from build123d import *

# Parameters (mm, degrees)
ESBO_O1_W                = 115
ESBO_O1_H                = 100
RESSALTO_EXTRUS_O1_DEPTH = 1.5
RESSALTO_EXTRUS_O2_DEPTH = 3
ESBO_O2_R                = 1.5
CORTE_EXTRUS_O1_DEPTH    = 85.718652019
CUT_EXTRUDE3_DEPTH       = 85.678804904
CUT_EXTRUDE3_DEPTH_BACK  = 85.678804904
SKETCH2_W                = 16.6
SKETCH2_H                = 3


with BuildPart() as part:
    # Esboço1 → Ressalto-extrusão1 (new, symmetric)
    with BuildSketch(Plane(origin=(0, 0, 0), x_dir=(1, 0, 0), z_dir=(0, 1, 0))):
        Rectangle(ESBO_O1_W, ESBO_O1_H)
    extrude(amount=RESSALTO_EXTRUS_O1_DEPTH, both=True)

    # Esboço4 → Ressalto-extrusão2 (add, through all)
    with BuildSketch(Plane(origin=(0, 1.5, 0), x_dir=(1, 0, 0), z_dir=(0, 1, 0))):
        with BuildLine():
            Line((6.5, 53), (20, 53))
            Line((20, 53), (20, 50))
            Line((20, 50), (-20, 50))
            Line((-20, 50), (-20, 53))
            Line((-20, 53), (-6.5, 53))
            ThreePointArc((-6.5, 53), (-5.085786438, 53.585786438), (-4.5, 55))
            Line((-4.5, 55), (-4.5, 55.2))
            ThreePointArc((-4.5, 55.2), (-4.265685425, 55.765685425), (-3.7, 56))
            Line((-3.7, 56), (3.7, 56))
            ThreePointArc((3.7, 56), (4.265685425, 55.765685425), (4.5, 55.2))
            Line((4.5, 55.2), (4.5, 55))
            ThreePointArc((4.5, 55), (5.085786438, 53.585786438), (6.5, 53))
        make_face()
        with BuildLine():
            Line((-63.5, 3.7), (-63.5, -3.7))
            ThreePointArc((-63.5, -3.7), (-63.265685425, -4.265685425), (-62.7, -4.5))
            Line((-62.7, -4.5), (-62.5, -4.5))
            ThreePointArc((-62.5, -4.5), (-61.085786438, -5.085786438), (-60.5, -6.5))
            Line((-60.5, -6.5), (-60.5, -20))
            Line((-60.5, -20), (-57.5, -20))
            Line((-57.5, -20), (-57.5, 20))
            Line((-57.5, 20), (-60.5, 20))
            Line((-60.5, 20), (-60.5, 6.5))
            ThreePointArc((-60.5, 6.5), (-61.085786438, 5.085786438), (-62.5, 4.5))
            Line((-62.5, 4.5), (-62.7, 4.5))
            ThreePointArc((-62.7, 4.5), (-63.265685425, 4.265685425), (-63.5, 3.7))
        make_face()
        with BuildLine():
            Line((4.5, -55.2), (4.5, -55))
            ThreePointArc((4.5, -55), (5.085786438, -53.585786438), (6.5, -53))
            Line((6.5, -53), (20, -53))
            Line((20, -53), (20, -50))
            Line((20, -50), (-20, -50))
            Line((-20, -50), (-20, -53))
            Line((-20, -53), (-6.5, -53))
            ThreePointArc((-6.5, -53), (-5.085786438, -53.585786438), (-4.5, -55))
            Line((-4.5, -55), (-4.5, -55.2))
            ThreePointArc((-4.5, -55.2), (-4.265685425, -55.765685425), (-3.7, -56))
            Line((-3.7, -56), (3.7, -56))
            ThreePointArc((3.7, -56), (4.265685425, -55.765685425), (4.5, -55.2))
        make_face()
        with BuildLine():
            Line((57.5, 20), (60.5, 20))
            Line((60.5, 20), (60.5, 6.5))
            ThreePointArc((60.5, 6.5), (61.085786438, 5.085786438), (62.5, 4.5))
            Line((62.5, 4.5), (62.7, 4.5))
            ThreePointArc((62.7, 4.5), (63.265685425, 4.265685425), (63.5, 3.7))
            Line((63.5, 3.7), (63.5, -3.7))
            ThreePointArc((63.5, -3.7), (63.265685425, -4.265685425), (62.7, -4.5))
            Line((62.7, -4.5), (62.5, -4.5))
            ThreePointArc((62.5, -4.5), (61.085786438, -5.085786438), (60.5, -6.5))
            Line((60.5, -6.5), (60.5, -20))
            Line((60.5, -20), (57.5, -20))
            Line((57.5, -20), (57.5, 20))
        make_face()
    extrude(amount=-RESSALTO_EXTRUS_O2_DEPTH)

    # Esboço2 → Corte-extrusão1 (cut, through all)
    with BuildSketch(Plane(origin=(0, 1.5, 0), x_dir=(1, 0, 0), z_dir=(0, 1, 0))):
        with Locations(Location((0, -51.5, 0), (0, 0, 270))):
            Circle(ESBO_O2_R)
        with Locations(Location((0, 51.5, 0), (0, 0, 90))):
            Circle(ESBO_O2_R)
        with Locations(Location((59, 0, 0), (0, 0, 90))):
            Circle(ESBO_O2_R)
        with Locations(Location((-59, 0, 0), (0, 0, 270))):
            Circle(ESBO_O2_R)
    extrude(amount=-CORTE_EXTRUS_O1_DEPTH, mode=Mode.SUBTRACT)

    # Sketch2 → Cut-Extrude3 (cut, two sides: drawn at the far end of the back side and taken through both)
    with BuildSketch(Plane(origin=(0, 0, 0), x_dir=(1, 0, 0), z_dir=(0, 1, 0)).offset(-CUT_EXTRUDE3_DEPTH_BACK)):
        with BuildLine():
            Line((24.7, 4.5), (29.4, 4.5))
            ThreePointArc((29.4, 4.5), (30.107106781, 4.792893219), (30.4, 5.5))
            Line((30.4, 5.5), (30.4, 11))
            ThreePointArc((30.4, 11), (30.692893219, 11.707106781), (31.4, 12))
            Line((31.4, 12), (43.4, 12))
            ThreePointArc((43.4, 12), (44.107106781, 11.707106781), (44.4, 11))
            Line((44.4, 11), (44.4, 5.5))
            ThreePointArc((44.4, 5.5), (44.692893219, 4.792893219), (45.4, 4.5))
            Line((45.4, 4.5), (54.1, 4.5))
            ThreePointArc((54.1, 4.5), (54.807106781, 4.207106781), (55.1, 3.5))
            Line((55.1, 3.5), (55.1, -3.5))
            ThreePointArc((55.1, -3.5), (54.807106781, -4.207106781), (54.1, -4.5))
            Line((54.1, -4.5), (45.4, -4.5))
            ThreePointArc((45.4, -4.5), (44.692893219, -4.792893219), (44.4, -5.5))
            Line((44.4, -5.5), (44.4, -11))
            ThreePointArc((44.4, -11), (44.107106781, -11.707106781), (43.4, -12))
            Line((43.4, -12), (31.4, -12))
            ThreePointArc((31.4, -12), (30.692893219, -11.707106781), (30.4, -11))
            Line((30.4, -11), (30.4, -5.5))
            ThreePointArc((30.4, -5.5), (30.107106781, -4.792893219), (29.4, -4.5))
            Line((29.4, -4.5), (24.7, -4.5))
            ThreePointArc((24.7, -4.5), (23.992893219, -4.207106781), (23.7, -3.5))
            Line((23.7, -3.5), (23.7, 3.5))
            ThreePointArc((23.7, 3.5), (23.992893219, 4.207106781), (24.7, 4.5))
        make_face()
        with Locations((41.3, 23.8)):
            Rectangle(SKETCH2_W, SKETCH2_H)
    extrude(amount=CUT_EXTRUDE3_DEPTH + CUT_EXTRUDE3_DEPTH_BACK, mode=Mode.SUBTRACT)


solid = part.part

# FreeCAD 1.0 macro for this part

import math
import FreeCAD as App
import Part
import Sketcher

V = App.Vector


def add_polygon(sketch, points):
    """Adds a closed chain of lines whose ends are joined by coincident constraints."""
    first, n = sketch.GeometryCount, len(points)
    for a, b in zip(points, points[1:] + points[:1]):
        sketch.addGeometry(Part.LineSegment(App.Vector(*a, 0), App.Vector(*b, 0)), False)
    for i in range(n):
        sketch.addConstraint(Sketcher.Constraint("Coincident", first + i, 2, first + (i + 1) % n, 1))

doc = App.newDocument("Part")
body = doc.addObject("PartDesign::Body", "Body")

# Sketch on XZ plane
sketch1 = body.newObject("Sketcher::SketchObject", "Sketch")
sketch1.AttachmentSupport = (doc.getObject("XZ_Plane"), [""])
sketch1.MapMode = "FlatFace"
add_polygon(sketch1, [(-58, -50), (-58, 50), (58, 50), (58, -50)])  # lines 0-3
sketch1.addConstraint([
    Sketcher.Constraint("Vertical", 0),
    Sketcher.Constraint("Horizontal", 1),
    Sketcher.Constraint("Vertical", 2),
    Sketcher.Constraint("Horizontal", 3),
    Sketcher.Constraint("Symmetric", 0, 2, 2, 2, -1, 1),
    Sketcher.Constraint("DistanceX", 1, 1, 1, 2, 115.0),
    Sketcher.Constraint("DistanceY", 0, 1, 0, 2, 100.0),
])
pad1 = body.newObject("PartDesign::Pad", "Pad")
pad1.Profile = sketch1
pad1.Length = 3
pad1.Midplane = True

# Sketch on XZ plane
sketch2 = body.newObject("Sketcher::SketchObject", "Sketch001")
sketch2.AttachmentSupport = (doc.getObject("XZ_Plane"), [""])
sketch2.MapMode = "FlatFace"
sketch2.AttachmentOffset = App.Placement(V(0, 0, -1.5), App.Rotation())
sketch2.addGeometry([
    Part.LineSegment(V(20, -53, 0), V(6.5, -53, 0)),  # 0
    Part.ArcOfCircle(Part.Circle(V(6.5, -55, 0), V(0, 0, 1), 2), math.radians(90), math.radians(180)),  # 1
    Part.LineSegment(V(4.5, -55, 0), V(4.5, -55.2, 0)),  # 2
    Part.ArcOfCircle(Part.Circle(V(3.7, -55.2, 0), V(0, 0, 1), 0.8), math.radians(-90), math.radians(0)),  # 3
    Part.LineSegment(V(3.7, -56, 0), V(-3.7, -56, 0)),  # 4
    Part.ArcOfCircle(Part.Circle(V(-3.7, -55.2, 0), V(0, 0, 1), 0.8), math.radians(180), math.radians(270)),  # 5
    Part.LineSegment(V(-4.5, -55.2, 0), V(-4.5, -55, 0)),  # 6
    Part.ArcOfCircle(Part.Circle(V(-6.5, -55, 0), V(0, 0, 1), 2), math.radians(0), math.radians(90)),  # 7
    Part.LineSegment(V(-6.5, -53, 0), V(-20, -53, 0)),  # 8
    Part.LineSegment(V(-20, -53, 0), V(-20, -50, 0)),  # 9
    Part.LineSegment(V(-20, -50, 0), V(20, -50, 0)),  # 10
    Part.LineSegment(V(20, -50, 0), V(20, -53, 0)),  # 11
    Part.LineSegment(V(-63.5, -3.7, 0), V(-63.5, 3.7, 0)),  # 12
    Part.ArcOfCircle(Part.Circle(V(-62.7, 3.7, 0), V(0, 0, 1), 0.8), math.radians(90), math.radians(180)),  # 13
    Part.LineSegment(V(-62.7, 4.5, 0), V(-62.5, 4.5, 0)),  # 14
    Part.ArcOfCircle(Part.Circle(V(-62.5, 6.5, 0), V(0, 0, 1), 2), math.radians(-90), math.radians(0)),  # 15
    Part.LineSegment(V(-60.5, 6.5, 0), V(-60.5, 20, 0)),  # 16
    Part.LineSegment(V(-60.5, 20, 0), V(-57.5, 20, 0)),  # 17
    Part.LineSegment(V(-57.5, 20, 0), V(-57.5, -20, 0)),  # 18
    Part.LineSegment(V(-57.5, -20, 0), V(-60.5, -20, 0)),  # 19
    Part.LineSegment(V(-60.5, -20, 0), V(-60.5, -6.5, 0)),  # 20
    Part.ArcOfCircle(Part.Circle(V(-62.5, -6.5, 0), V(0, 0, 1), 2), math.radians(0), math.radians(90)),  # 21
    Part.LineSegment(V(-62.5, -4.5, 0), V(-62.7, -4.5, 0)),  # 22
    Part.ArcOfCircle(Part.Circle(V(-62.7, -3.7, 0), V(0, 0, 1), 0.8), math.radians(180), math.radians(270)),  # 23
    Part.LineSegment(V(4.5, 55.2, 0), V(4.5, 55, 0)),  # 24
    Part.ArcOfCircle(Part.Circle(V(6.5, 55, 0), V(0, 0, 1), 2), math.radians(-180), math.radians(-90)),  # 25
    Part.LineSegment(V(6.5, 53, 0), V(20, 53, 0)),  # 26
    Part.LineSegment(V(20, 53, 0), V(20, 50, 0)),  # 27
    Part.LineSegment(V(20, 50, 0), V(-20, 50, 0)),  # 28
    Part.LineSegment(V(-20, 50, 0), V(-20, 53, 0)),  # 29
    Part.LineSegment(V(-20, 53, 0), V(-6.5, 53, 0)),  # 30
    Part.ArcOfCircle(Part.Circle(V(-6.5, 55, 0), V(0, 0, 1), 2), math.radians(-90), math.radians(0)),  # 31
    Part.LineSegment(V(-4.5, 55, 0), V(-4.5, 55.2, 0)),  # 32
    Part.ArcOfCircle(Part.Circle(V(-3.7, 55.2, 0), V(0, 0, 1), 0.8), math.radians(90), math.radians(180)),  # 33
    Part.LineSegment(V(-3.7, 56, 0), V(3.7, 56, 0)),  # 34
    Part.ArcOfCircle(Part.Circle(V(3.7, 55.2, 0), V(0, 0, 1), 0.8), math.radians(0), math.radians(90)),  # 35
    Part.LineSegment(V(60.5, -20, 0), V(57.5, -20, 0)),  # 36
    Part.LineSegment(V(57.5, -20, 0), V(57.5, 20, 0)),  # 37
    Part.LineSegment(V(57.5, 20, 0), V(60.5, 20, 0)),  # 38
    Part.LineSegment(V(60.5, 20, 0), V(60.5, 6.5, 0)),  # 39
    Part.ArcOfCircle(Part.Circle(V(62.5, 6.5, 0), V(0, 0, 1), 2), math.radians(-180), math.radians(-90)),  # 40
    Part.LineSegment(V(62.5, 4.5, 0), V(62.7, 4.5, 0)),  # 41
    Part.ArcOfCircle(Part.Circle(V(62.7, 3.7, 0), V(0, 0, 1), 0.8), math.radians(0), math.radians(90)),  # 42
    Part.LineSegment(V(63.5, 3.7, 0), V(63.5, -3.7, 0)),  # 43
    Part.ArcOfCircle(Part.Circle(V(62.7, -3.7, 0), V(0, 0, 1), 0.8), math.radians(-90), math.radians(0)),  # 44
    Part.LineSegment(V(62.7, -4.5, 0), V(62.5, -4.5, 0)),  # 45
    Part.ArcOfCircle(Part.Circle(V(62.5, -6.5, 0), V(0, 0, 1), 2), math.radians(90), math.radians(180)),  # 46
    Part.LineSegment(V(60.5, -6.5, 0), V(60.5, -20, 0)),  # 47
], False)
sketch2.addConstraint([
    Sketcher.Constraint("Tangent", 0, 2, 1, 1),
    Sketcher.Constraint("Tangent", 1, 2, 2, 1),
    Sketcher.Constraint("Tangent", 2, 2, 3, 2),
    Sketcher.Constraint("Tangent", 3, 1, 4, 1),
    Sketcher.Constraint("Tangent", 4, 2, 5, 2),
    Sketcher.Constraint("Tangent", 5, 1, 6, 1),
    Sketcher.Constraint("Tangent", 6, 2, 7, 1),
    Sketcher.Constraint("Tangent", 7, 2, 8, 1),
    Sketcher.Constraint("Coincident", 8, 2, 9, 1),
    Sketcher.Constraint("Coincident", 9, 2, 10, 1),
    Sketcher.Constraint("Coincident", 10, 2, 11, 1),
    Sketcher.Constraint("Coincident", 11, 2, 0, 1),
    Sketcher.Constraint("Tangent", 12, 2, 13, 2),
    Sketcher.Constraint("Tangent", 13, 1, 14, 1),
    Sketcher.Constraint("Tangent", 14, 2, 15, 1),
    Sketcher.Constraint("Tangent", 15, 2, 16, 1),
    Sketcher.Constraint("Coincident", 16, 2, 17, 1),
    Sketcher.Constraint("Coincident", 17, 2, 18, 1),
    Sketcher.Constraint("Coincident", 18, 2, 19, 1),
    Sketcher.Constraint("Coincident", 19, 2, 20, 1),
    Sketcher.Constraint("Tangent", 20, 2, 21, 1),
    Sketcher.Constraint("Tangent", 21, 2, 22, 1),
    Sketcher.Constraint("Tangent", 22, 2, 23, 2),
    Sketcher.Constraint("Tangent", 23, 1, 12, 1),
    Sketcher.Constraint("Tangent", 24, 2, 25, 1),
    Sketcher.Constraint("Tangent", 25, 2, 26, 1),
    Sketcher.Constraint("Coincident", 26, 2, 27, 1),
    Sketcher.Constraint("Coincident", 27, 2, 28, 1),
    Sketcher.Constraint("Coincident", 28, 2, 29, 1),
    Sketcher.Constraint("Coincident", 29, 2, 30, 1),
    Sketcher.Constraint("Tangent", 30, 2, 31, 1),
    Sketcher.Constraint("Tangent", 31, 2, 32, 1),
    Sketcher.Constraint("Tangent", 32, 2, 33, 2),
    Sketcher.Constraint("Tangent", 33, 1, 34, 1),
    Sketcher.Constraint("Tangent", 34, 2, 35, 2),
    Sketcher.Constraint("Tangent", 35, 1, 24, 1),
    Sketcher.Constraint("Coincident", 36, 2, 37, 1),
    Sketcher.Constraint("Coincident", 37, 2, 38, 1),
    Sketcher.Constraint("Coincident", 38, 2, 39, 1),
    Sketcher.Constraint("Tangent", 39, 2, 40, 1),
    Sketcher.Constraint("Tangent", 40, 2, 41, 1),
    Sketcher.Constraint("Tangent", 41, 2, 42, 2),
    Sketcher.Constraint("Tangent", 42, 1, 43, 1),
    Sketcher.Constraint("Tangent", 43, 2, 44, 2),
    Sketcher.Constraint("Tangent", 44, 1, 45, 1),
    Sketcher.Constraint("Tangent", 45, 2, 46, 1),
    Sketcher.Constraint("Tangent", 46, 2, 47, 1),
    Sketcher.Constraint("Coincident", 47, 2, 36, 1),
    Sketcher.Constraint("Horizontal", 0),
    Sketcher.Constraint("Vertical", 2),
    Sketcher.Constraint("Horizontal", 4),
    Sketcher.Constraint("Vertical", 6),
    Sketcher.Constraint("Horizontal", 8),
    Sketcher.Constraint("Vertical", 9),
    Sketcher.Constraint("Horizontal", 10),
    Sketcher.Constraint("Vertical", 11),
    Sketcher.Constraint("Vertical", 12),
    Sketcher.Constraint("Horizontal", 14),
    Sketcher.Constraint("Vertical", 16),
    Sketcher.Constraint("Horizontal", 17),
    Sketcher.Constraint("Vertical", 18),
    Sketcher.Constraint("Horizontal", 19),
    Sketcher.Constraint("Vertical", 20),
    Sketcher.Constraint("Horizontal", 22),
    Sketcher.Constraint("Vertical", 24),
    Sketcher.Constraint("Horizontal", 26),
    Sketcher.Constraint("Vertical", 27),
    Sketcher.Constraint("Horizontal", 28),
    Sketcher.Constraint("Vertical", 29),
    Sketcher.Constraint("Horizontal", 30),
    Sketcher.Constraint("Vertical", 32),
    Sketcher.Constraint("Horizontal", 34),
    Sketcher.Constraint("Horizontal", 36),
    Sketcher.Constraint("Vertical", 37),
    Sketcher.Constraint("Horizontal", 38),
    Sketcher.Constraint("Vertical", 39),
    Sketcher.Constraint("Horizontal", 41),
    Sketcher.Constraint("Vertical", 43),
    Sketcher.Constraint("Horizontal", 45),
    Sketcher.Constraint("Vertical", 47),
    Sketcher.Constraint("Equal", 3, 5),
    Sketcher.Constraint("Equal", 1, 7),
    Sketcher.Constraint("Equal", 5, 13),
    Sketcher.Constraint("Equal", 7, 15),
    Sketcher.Constraint("Equal", 15, 21),
    Sketcher.Constraint("Equal", 13, 23),
    Sketcher.Constraint("Equal", 21, 25),
    Sketcher.Constraint("Equal", 25, 31),
    Sketcher.Constraint("Equal", 23, 33),
    Sketcher.Constraint("Equal", 33, 35),
    Sketcher.Constraint("Equal", 31, 40),
    Sketcher.Constraint("Equal", 35, 42),
    Sketcher.Constraint("Equal", 42, 44),
    Sketcher.Constraint("Equal", 40, 46),
    Sketcher.Constraint("Symmetric", 7, 3, 25, 3, -1, 1),
    Sketcher.Constraint("Symmetric", 1, 3, 31, 3, -1, 1),
    Sketcher.Constraint("Symmetric", 21, 3, 40, 3, -1, 1),
    Sketcher.Constraint("Symmetric", 13, 3, 44, 3, -1, 1),
    Sketcher.Constraint("Symmetric", 9, 2, 27, 2, -1, 1),
    Sketcher.Constraint("Symmetric", 17, 2, 36, 2, -1, 1),
    Sketcher.Constraint("Symmetric", 1, 3, 7, 3, -2),
    Sketcher.Constraint("Symmetric", 15, 3, 40, 3, -2),
    Sketcher.Constraint("Symmetric", 19, 2, 47, 2, -2),
    Sketcher.Constraint("Horizontal", 17, 2, 37, 2),
    Sketcher.Constraint("Vertical", 11, 2, 26, 2),
    Sketcher.Constraint("Vertical", 9, 2, 28, 2),
    Sketcher.Constraint("Equal", 45, 2),
    Sketcher.Constraint("Equal", 38, 9),
    Sketcher.Constraint("Equal", 34, 12),
    Sketcher.Constraint("Equal", 30, 16),
    Sketcher.Constraint("Equal", 6, 24),
    Sketcher.Constraint("Radius", 1, 2.0),
    Sketcher.Constraint("Radius", 3, 0.8),
    Sketcher.Constraint("DistanceX", 10, 1, 10, 2, 40.0),
    Sketcher.Constraint("DistanceX", 17, 1, 17, 2, 3.0),
    Sketcher.Constraint("DistanceX", 0, 2, 0, 1, 13.5),
    Sketcher.Constraint("DistanceX", 14, 1, 14, 2, 0.2),
    Sketcher.Constraint("DistanceY", 1, 3, -1, 1, 55.0),
    Sketcher.Constraint("DistanceX", 13, 3, -1, 1, 62.7),
])
pad2 = body.newObject("PartDesign::Pad", "Pad001")
pad2.Profile = sketch2
pad2.Type = "UpToLast"

# Sketch on XZ plane
sketch3 = body.newObject("Sketcher::SketchObject", "Sketch002")
sketch3.AttachmentSupport = (doc.getObject("XZ_Plane"), [""])
sketch3.MapMode = "FlatFace"
sketch3.AttachmentOffset = App.Placement(V(0, 0, -1.5), App.Rotation())
sketch3.addGeometry([
    Part.Circle(V(0, 51.5, 0), V(0, 0, 1), 1.5),
    Part.Circle(V(0, -51.5, 0), V(0, 0, 1), 1.5),
    Part.Circle(V(59, 0, 0), V(0, 0, 1), 1.5),
    Part.Circle(V(-59, 0, 0), V(0, 0, 1), 1.5),
], False)
sketch3.addConstraint([
    Sketcher.Constraint("Equal", 0, 1),
    Sketcher.Constraint("Equal", 1, 2),
    Sketcher.Constraint("Equal", 2, 3),
    Sketcher.Constraint("Symmetric", 0, 3, 1, 3, -1, 1),
    Sketcher.Constraint("Symmetric", 2, 3, 3, 3, -1, 1),
    Sketcher.Constraint("PointOnObject", 0, 3, -2),
    Sketcher.Constraint("PointOnObject", 2, 3, -1),
    Sketcher.Constraint("Diameter", 0, 3.0),
    Sketcher.Constraint("DistanceX", -1, 1, 2, 3, 59.0),
    Sketcher.Constraint("DistanceY", 1, 3, 0, 3, 103.0),
])
pocket1 = body.newObject("PartDesign::Pocket", "Pocket")
pocket1.Profile = sketch3
pocket1.Type = "ThroughAll"
pocket1.Reversed = True

# Sketch on XZ plane
sketch4 = body.newObject("Sketcher::SketchObject", "Sketch003")
sketch4.AttachmentSupport = (doc.getObject("XZ_Plane"), [""])
sketch4.MapMode = "FlatFace"
sketch4.addGeometry(Part.LineSegment(V(29.4, -4.5, 0), V(24.7, -4.5, 0)), False)  # 0
sketch4.addGeometry(Part.ArcOfCircle(Part.Circle(V(24.7, -3.5, 0), V(0, 0, 1), 1), math.radians(-180), math.radians(-90)), False)  # 1
sketch4.addGeometry(Part.LineSegment(V(23.7, -3.5, 0), V(23.7, 3.5, 0)), False)  # 2
sketch4.addGeometry(Part.ArcOfCircle(Part.Circle(V(24.7, 3.5, 0), V(0, 0, 1), 1), math.radians(90), math.radians(180)), False)  # 3
sketch4.addGeometry(Part.LineSegment(V(24.7, 4.5, 0), V(29.4, 4.5, 0)), False)  # 4
sketch4.addGeometry(Part.ArcOfCircle(Part.Circle(V(29.4, 5.5, 0), V(0, 0, 1), 1), math.radians(-90), math.radians(0)), False)  # 5
sketch4.addGeometry(Part.LineSegment(V(30.4, 5.5, 0), V(30.4, 11, 0)), False)  # 6
sketch4.addGeometry(Part.ArcOfCircle(Part.Circle(V(31.4, 11, 0), V(0, 0, 1), 1), math.radians(90), math.radians(180)), False)  # 7
sketch4.addGeometry(Part.LineSegment(V(31.4, 12, 0), V(43.4, 12, 0)), False)  # 8
sketch4.addGeometry(Part.ArcOfCircle(Part.Circle(V(43.4, 11, 0), V(0, 0, 1), 1), math.radians(0), math.radians(90)), False)  # 9
sketch4.addGeometry(Part.LineSegment(V(44.4, 11, 0), V(44.4, 5.5, 0)), False)  # 10
sketch4.addGeometry(Part.ArcOfCircle(Part.Circle(V(45.4, 5.5, 0), V(0, 0, 1), 1), math.radians(-180), math.radians(-90)), False)  # 11
sketch4.addGeometry(Part.LineSegment(V(45.4, 4.5, 0), V(54.1, 4.5, 0)), False)  # 12
sketch4.addGeometry(Part.ArcOfCircle(Part.Circle(V(54.1, 3.5, 0), V(0, 0, 1), 1), math.radians(0), math.radians(90)), False)  # 13
sketch4.addGeometry(Part.LineSegment(V(55.1, 3.5, 0), V(55.1, -3.5, 0)), False)  # 14
sketch4.addGeometry(Part.ArcOfCircle(Part.Circle(V(54.1, -3.5, 0), V(0, 0, 1), 1), math.radians(-90), math.radians(0)), False)  # 15
sketch4.addGeometry(Part.LineSegment(V(54.1, -4.5, 0), V(45.4, -4.5, 0)), False)  # 16
sketch4.addGeometry(Part.ArcOfCircle(Part.Circle(V(45.4, -5.5, 0), V(0, 0, 1), 1), math.radians(90), math.radians(180)), False)  # 17
sketch4.addGeometry(Part.LineSegment(V(44.4, -5.5, 0), V(44.4, -11, 0)), False)  # 18
sketch4.addGeometry(Part.ArcOfCircle(Part.Circle(V(43.4, -11, 0), V(0, 0, 1), 1), math.radians(-90), math.radians(0)), False)  # 19
sketch4.addGeometry(Part.LineSegment(V(43.4, -12, 0), V(31.4, -12, 0)), False)  # 20
sketch4.addGeometry(Part.ArcOfCircle(Part.Circle(V(31.4, -11, 0), V(0, 0, 1), 1), math.radians(-180), math.radians(-90)), False)  # 21
sketch4.addGeometry(Part.LineSegment(V(30.4, -11, 0), V(30.4, -5.5, 0)), False)  # 22
sketch4.addGeometry(Part.ArcOfCircle(Part.Circle(V(29.4, -5.5, 0), V(0, 0, 1), 1), math.radians(0), math.radians(90)), False)  # 23
add_polygon(sketch4, [(33, -25.3), (33, -22.3), (49.6, -22.3), (49.6, -25.3)])  # lines 24-27
sketch4.addConstraint([
    Sketcher.Constraint("Tangent", 0, 2, 1, 2),
    Sketcher.Constraint("Tangent", 1, 1, 2, 1),
    Sketcher.Constraint("Tangent", 2, 2, 3, 2),
    Sketcher.Constraint("Tangent", 3, 1, 4, 1),
    Sketcher.Constraint("Tangent", 4, 2, 5, 1),
    Sketcher.Constraint("Tangent", 5, 2, 6, 1),
    Sketcher.Constraint("Tangent", 6, 2, 7, 2),
    Sketcher.Constraint("Tangent", 7, 1, 8, 1),
    Sketcher.Constraint("Tangent", 8, 2, 9, 2),
    Sketcher.Constraint("Tangent", 9, 1, 10, 1),
    Sketcher.Constraint("Tangent", 10, 2, 11, 1),
    Sketcher.Constraint("Tangent", 11, 2, 12, 1),
    Sketcher.Constraint("Tangent", 12, 2, 13, 2),
    Sketcher.Constraint("Tangent", 13, 1, 14, 1),
    Sketcher.Constraint("Tangent", 14, 2, 15, 2),
    Sketcher.Constraint("Tangent", 15, 1, 16, 1),
    Sketcher.Constraint("Tangent", 16, 2, 17, 1),
    Sketcher.Constraint("Tangent", 17, 2, 18, 1),
    Sketcher.Constraint("Tangent", 18, 2, 19, 2),
    Sketcher.Constraint("Tangent", 19, 1, 20, 1),
    Sketcher.Constraint("Tangent", 20, 2, 21, 2),
    Sketcher.Constraint("Tangent", 21, 1, 22, 1),
    Sketcher.Constraint("Tangent", 22, 2, 23, 1),
    Sketcher.Constraint("Tangent", 23, 2, 0, 1),
    Sketcher.Constraint("Horizontal", 0),
    Sketcher.Constraint("Vertical", 2),
    Sketcher.Constraint("Horizontal", 4),
    Sketcher.Constraint("Vertical", 6),
    Sketcher.Constraint("Horizontal", 8),
    Sketcher.Constraint("Vertical", 10),
    Sketcher.Constraint("Horizontal", 12),
    Sketcher.Constraint("Vertical", 14),
    Sketcher.Constraint("Horizontal", 16),
    Sketcher.Constraint("Vertical", 18),
    Sketcher.Constraint("Horizontal", 20),
    Sketcher.Constraint("Vertical", 22),
    Sketcher.Constraint("Vertical", 24),
    Sketcher.Constraint("Horizontal", 25),
    Sketcher.Constraint("Vertical", 26),
    Sketcher.Constraint("Horizontal", 27),
    Sketcher.Constraint("Equal", 1, 3),
    Sketcher.Constraint("Equal", 3, 5),
    Sketcher.Constraint("Equal", 5, 7),
    Sketcher.Constraint("Equal", 7, 9),
    Sketcher.Constraint("Equal", 9, 11),
    Sketcher.Constraint("Equal", 11, 13),
    Sketcher.Constraint("Equal", 13, 15),
    Sketcher.Constraint("Equal", 15, 17),
    Sketcher.Constraint("Equal", 17, 19),
    Sketcher.Constraint("Equal", 19, 21),
    Sketcher.Constraint("Equal", 21, 23),
    Sketcher.Constraint("Symmetric", 11, 3, 17, 3, -1),
    Sketcher.Constraint("Symmetric", 7, 3, 21, 3, -1),
    Sketcher.Constraint("Horizontal", 5, 3, 11, 3),
    Sketcher.Constraint("Horizontal", 1, 3, 15, 3),
    Sketcher.Constraint("Radius", 1, 1.0),
    Sketcher.Constraint("DistanceX", 8, 1, 8, 2, 12.0),
    Sketcher.Constraint("DistanceY", 2, 1, 2, 2, 7.0),
    Sketcher.Constraint("DistanceY", 24, 1, 24, 2, 3.0),
    Sketcher.Constraint("DistanceX", 0, 2, 0, 1, 4.7),
    Sketcher.Constraint("DistanceX", 12, 1, 12, 2, 8.7),
    Sketcher.Constraint("DistanceX", 25, 1, 25, 2, 16.6),
    Sketcher.Constraint("DistanceY", 6, 1, 6, 2, 5.5),
    Sketcher.Constraint("DistanceX", -1, 1, 24, 2, 33.0),
    Sketcher.Constraint("DistanceX", -1, 1, 1, 3, 24.7),
    Sketcher.Constraint("DistanceY", 24, 2, -1, 1, 22.3),
])
pocket2 = body.newObject("PartDesign::Pocket", "Pocket001")
pocket2.Profile = sketch4
pocket2.Type = "ThroughAll"
pocket2.Midplane = True

doc.recompute()
